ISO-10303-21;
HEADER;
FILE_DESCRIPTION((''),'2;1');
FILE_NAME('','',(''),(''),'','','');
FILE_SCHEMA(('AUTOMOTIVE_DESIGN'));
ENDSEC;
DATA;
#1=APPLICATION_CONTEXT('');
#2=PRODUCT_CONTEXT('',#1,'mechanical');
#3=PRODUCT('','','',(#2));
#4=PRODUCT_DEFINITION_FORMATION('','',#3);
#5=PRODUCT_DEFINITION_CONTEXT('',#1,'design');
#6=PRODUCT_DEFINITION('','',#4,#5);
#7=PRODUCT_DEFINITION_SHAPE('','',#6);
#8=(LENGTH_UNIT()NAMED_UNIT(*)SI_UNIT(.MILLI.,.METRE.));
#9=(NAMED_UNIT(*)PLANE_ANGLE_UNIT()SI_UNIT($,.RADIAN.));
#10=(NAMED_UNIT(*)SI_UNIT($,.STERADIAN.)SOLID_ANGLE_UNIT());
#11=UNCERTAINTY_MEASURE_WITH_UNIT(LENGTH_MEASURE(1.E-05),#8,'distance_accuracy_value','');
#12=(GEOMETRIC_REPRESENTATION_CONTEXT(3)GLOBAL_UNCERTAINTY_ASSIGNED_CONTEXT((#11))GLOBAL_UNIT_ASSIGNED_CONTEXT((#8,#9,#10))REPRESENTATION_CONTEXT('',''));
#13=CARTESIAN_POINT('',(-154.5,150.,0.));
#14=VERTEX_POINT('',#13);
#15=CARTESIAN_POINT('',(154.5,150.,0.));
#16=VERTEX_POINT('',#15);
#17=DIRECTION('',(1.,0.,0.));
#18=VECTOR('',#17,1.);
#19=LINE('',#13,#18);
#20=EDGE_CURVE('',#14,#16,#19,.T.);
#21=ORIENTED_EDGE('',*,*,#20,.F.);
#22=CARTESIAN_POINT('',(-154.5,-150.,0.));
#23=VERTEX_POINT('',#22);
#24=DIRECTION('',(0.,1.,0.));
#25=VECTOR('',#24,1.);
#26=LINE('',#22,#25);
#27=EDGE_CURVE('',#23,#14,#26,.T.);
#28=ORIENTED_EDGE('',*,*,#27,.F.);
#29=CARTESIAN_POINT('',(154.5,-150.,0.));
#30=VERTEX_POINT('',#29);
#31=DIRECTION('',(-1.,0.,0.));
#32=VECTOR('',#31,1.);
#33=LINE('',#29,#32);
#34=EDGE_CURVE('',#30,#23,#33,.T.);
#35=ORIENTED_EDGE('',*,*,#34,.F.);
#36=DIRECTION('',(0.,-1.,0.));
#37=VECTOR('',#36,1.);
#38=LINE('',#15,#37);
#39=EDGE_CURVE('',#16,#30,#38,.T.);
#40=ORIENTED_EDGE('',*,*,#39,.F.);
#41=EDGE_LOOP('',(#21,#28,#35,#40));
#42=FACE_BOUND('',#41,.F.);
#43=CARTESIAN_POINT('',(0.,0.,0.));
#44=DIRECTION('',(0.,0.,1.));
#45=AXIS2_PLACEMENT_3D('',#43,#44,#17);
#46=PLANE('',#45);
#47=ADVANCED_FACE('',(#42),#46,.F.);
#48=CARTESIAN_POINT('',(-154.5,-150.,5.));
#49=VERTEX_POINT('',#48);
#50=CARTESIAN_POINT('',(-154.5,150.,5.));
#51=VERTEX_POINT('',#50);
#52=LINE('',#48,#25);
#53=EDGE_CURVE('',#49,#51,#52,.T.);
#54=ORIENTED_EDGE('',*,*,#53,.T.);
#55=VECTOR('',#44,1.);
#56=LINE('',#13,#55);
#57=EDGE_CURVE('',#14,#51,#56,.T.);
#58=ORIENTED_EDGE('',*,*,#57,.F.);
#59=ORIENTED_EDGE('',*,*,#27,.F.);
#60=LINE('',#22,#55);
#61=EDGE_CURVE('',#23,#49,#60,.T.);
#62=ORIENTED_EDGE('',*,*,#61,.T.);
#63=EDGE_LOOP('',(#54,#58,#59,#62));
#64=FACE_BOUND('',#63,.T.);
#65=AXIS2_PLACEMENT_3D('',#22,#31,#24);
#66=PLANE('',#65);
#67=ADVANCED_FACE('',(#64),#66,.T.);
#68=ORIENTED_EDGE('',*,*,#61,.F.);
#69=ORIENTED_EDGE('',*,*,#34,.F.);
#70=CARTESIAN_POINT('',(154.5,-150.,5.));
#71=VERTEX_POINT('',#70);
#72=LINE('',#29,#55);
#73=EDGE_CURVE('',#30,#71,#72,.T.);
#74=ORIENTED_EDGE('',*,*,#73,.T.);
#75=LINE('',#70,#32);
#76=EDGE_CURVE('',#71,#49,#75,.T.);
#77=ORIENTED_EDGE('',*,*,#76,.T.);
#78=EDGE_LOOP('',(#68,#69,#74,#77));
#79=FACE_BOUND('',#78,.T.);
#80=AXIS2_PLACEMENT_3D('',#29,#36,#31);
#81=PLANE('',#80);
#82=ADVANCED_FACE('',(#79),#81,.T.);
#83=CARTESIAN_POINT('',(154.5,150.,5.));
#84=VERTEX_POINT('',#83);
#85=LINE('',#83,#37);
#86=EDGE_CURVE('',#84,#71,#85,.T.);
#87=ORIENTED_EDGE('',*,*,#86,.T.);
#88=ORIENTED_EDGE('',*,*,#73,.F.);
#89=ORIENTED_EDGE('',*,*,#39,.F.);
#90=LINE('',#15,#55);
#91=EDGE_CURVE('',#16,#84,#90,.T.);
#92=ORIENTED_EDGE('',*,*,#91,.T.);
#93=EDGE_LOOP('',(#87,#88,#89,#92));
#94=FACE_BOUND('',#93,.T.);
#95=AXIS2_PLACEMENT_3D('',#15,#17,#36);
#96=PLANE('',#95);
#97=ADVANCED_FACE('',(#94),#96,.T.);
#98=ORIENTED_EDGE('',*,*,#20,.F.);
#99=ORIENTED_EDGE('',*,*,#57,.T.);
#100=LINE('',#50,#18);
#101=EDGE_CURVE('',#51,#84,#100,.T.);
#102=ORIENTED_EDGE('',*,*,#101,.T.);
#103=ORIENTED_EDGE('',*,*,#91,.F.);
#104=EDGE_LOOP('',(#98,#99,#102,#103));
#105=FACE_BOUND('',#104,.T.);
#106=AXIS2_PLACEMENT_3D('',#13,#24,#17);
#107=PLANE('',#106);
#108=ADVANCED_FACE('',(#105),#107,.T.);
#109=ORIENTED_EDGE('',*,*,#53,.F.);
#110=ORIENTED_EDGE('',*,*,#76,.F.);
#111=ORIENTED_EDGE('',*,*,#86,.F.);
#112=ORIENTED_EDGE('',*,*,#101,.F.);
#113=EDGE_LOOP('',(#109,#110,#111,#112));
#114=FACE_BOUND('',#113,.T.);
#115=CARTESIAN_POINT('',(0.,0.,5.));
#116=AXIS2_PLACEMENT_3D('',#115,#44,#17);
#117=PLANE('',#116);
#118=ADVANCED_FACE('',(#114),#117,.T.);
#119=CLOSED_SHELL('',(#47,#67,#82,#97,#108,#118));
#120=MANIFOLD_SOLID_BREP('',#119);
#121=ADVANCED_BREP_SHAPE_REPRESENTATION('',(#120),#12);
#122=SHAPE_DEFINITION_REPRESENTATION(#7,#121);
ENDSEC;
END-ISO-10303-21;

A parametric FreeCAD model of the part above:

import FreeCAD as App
import Part
import Sketcher

V = App.Vector

doc = App.newDocument("Part")
body = doc.addObject("PartDesign::Body", "Body")

# Sketch on XY plane
sketch1 = doc.addObject("Sketcher::SketchObject", "Sketch")
body.addObject(sketch1)
sketch1.AttachmentSupport = (doc.XY_Plane, [""])
sketch1.MapMode = "FlatFace"
sketch1.addGeometry([
    Part.LineSegment(V(154.5, 150, 0), V(-154.5, 150, 0)),
    Part.LineSegment(V(-154.5, 150, 0), V(-154.5, -150, 0)),
    Part.LineSegment(V(-154.5, -150, 0), V(154.5, -150, 0)),
    Part.LineSegment(V(154.5, -150, 0), V(154.5, 150, 0)),
], False)
sketch1.addConstraint([
    Sketcher.Constraint("Coincident", 0, 2, 1, 1),
    Sketcher.Constraint("Coincident", 1, 2, 2, 1),
    Sketcher.Constraint("Coincident", 2, 2, 3, 1),
    Sketcher.Constraint("Coincident", 3, 2, 0, 1),
    Sketcher.Constraint("Horizontal", 0),
    Sketcher.Constraint("Vertical", 1),
    Sketcher.Constraint("Horizontal", 2),
    Sketcher.Constraint("Vertical", 3),
    Sketcher.Constraint("Symmetric", 0, 2, 2, 2, -1, 1),
    Sketcher.Constraint("DistanceX", 0, 2, 0, 1, 309.0),
    Sketcher.Constraint("DistanceY", 1, 2, 1, 1, 300.0),
])
pad1 = doc.addObject("PartDesign::Pad", "Pad")
body.addObject(pad1)
pad1.Profile = sketch1
pad1.Length = 5

doc.recompute()
